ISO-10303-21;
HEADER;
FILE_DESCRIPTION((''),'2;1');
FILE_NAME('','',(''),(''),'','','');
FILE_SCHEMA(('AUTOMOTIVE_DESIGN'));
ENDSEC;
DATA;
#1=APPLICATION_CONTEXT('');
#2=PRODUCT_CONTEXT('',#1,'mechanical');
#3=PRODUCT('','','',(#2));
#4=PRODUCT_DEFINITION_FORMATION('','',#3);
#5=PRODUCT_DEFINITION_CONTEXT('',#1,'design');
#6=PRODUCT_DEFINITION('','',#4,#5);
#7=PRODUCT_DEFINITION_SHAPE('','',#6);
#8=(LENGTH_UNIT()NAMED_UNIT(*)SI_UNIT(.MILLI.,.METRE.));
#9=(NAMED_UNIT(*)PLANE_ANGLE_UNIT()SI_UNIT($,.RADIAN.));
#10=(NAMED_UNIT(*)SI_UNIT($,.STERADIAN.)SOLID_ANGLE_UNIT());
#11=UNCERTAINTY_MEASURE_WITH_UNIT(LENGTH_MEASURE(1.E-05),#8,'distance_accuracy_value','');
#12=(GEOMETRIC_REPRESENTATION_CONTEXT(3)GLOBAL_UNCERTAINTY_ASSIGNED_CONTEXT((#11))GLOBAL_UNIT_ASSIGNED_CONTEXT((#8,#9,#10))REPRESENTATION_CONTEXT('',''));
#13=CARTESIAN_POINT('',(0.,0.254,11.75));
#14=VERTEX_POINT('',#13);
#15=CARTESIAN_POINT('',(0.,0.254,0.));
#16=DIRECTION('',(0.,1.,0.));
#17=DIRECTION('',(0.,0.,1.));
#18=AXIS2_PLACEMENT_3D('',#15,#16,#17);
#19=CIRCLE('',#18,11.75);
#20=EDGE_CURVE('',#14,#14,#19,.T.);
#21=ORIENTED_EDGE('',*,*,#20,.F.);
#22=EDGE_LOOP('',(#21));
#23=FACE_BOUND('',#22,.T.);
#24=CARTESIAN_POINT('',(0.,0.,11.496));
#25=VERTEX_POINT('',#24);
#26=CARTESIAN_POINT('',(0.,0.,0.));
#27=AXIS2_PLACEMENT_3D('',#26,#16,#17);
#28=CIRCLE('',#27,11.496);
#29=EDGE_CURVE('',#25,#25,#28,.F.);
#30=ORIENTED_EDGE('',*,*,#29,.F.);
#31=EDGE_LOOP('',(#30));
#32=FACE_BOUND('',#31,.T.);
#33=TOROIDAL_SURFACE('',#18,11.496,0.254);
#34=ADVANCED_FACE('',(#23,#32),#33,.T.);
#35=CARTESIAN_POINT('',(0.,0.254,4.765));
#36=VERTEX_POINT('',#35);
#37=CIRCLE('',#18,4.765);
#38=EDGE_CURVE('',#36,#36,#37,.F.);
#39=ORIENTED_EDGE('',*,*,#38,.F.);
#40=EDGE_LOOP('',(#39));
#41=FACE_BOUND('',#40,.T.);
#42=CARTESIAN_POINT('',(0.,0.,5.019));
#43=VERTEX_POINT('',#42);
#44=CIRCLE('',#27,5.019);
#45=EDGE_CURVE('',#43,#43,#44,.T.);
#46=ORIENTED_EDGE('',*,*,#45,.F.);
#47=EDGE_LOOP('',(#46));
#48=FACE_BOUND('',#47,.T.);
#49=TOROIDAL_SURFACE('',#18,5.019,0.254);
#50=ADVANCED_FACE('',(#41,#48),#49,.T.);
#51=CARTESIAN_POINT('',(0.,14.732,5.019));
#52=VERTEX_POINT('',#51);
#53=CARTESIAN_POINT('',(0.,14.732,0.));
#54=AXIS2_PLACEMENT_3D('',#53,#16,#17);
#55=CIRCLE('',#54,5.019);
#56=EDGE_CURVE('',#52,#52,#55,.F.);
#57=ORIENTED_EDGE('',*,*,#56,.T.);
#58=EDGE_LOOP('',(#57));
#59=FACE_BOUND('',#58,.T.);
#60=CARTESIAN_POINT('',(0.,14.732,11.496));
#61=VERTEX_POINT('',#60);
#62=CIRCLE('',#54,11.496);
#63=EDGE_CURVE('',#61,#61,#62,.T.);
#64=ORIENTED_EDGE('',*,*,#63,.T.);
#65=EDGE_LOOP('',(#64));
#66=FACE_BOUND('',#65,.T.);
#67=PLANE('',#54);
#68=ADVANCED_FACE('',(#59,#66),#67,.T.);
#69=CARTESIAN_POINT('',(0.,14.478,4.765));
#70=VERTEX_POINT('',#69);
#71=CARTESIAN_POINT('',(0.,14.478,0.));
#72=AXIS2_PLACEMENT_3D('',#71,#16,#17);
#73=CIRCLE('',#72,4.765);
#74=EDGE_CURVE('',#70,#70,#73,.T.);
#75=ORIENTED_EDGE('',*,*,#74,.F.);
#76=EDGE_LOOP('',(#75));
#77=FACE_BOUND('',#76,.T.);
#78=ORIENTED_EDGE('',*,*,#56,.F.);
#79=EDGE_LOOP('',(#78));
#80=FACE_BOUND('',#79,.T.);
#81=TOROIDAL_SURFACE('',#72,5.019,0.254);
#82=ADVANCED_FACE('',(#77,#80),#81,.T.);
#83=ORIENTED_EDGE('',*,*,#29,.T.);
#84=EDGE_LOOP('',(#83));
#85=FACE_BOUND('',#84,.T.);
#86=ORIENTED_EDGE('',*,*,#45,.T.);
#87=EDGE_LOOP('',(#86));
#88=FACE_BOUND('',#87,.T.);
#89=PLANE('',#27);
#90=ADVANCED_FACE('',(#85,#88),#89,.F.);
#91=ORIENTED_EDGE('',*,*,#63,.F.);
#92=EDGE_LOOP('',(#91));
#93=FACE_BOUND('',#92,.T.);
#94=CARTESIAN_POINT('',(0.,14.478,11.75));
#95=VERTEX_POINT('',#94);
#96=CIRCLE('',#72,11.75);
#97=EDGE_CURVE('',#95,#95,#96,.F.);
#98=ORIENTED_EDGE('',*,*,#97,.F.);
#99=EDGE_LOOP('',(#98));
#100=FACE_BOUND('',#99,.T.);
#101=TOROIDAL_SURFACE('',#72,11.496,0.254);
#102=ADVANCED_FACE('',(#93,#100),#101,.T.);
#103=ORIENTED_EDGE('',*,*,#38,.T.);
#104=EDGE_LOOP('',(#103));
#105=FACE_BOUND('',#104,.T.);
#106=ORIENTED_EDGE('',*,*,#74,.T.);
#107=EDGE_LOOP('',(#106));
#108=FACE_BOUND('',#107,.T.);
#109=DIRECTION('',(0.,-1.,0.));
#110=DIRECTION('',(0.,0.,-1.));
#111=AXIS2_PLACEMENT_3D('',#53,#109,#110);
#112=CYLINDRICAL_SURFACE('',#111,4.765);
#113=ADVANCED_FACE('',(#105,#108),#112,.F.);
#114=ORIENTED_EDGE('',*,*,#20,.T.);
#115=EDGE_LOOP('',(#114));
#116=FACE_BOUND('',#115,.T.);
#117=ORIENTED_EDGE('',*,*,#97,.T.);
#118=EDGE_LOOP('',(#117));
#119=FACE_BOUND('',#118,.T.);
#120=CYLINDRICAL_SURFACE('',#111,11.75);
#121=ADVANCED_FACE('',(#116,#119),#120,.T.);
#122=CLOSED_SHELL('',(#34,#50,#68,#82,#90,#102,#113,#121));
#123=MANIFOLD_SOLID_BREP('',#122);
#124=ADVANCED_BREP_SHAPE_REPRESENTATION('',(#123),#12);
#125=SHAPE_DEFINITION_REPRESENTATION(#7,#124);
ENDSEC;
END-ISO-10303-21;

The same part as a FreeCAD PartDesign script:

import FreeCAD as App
import Part
import Sketcher

V = App.Vector
Q = App.Units.Quantity


def edges_at(feature, points):
    """Names of the edges that pass closest to the given points."""
    edges = feature.Shape.Edges
    near = lambda p: min(range(len(edges)), key=lambda i: edges[i].distToShape(Part.Vertex(*p))[0])
    return sorted({f"Edge{near(p) + 1}" for p in points})

doc = App.newDocument("Part")
body = doc.addObject("PartDesign::Body", "Body")

# Sketch on XZ plane
sketch1 = doc.addObject("Sketcher::SketchObject", "Sketch")
body.addObject(sketch1)
sketch1.AttachmentSupport = (doc.XZ_Plane, [""])
sketch1.MapMode = "FlatFace"
sketch1.addGeometry(Part.Circle(V(0, 0, 0), V(0, 0, 1), 11.75), False)
sketch1.addGeometry(Part.Circle(V(0, 0, 0), V(0, 0, 1), 4.765), False)
sketch1.addConstraint(Sketcher.Constraint("Coincident", 0, 3, -1, 1))
sketch1.addConstraint(Sketcher.Constraint("Coincident", 1, 3, -1, 1))
sketch1.addConstraint(Sketcher.Constraint("Diameter", 0, Q("23.5 mm")))
sketch1.addConstraint(Sketcher.Constraint("Diameter", 1, Q("9.53 mm")))
pad1 = doc.addObject("PartDesign::Pad", "Pad")
body.addObject(pad1)
pad1.Profile = sketch1
pad1.Length = Q("0.58 in")
pad1.Reversed = True
doc.recompute()

fillet = doc.addObject("PartDesign::Fillet", "Fillet")
body.addObject(fillet)
fillet.Base = (pad1, edges_at(pad1, [
    (0, 0, -11.75),
    (0, 14.732, -11.75),
    (0, 0, -4.765),
    (0, 14.732, -4.765),
]))
fillet.Radius = Q("0.01 in")

doc.recompute()
